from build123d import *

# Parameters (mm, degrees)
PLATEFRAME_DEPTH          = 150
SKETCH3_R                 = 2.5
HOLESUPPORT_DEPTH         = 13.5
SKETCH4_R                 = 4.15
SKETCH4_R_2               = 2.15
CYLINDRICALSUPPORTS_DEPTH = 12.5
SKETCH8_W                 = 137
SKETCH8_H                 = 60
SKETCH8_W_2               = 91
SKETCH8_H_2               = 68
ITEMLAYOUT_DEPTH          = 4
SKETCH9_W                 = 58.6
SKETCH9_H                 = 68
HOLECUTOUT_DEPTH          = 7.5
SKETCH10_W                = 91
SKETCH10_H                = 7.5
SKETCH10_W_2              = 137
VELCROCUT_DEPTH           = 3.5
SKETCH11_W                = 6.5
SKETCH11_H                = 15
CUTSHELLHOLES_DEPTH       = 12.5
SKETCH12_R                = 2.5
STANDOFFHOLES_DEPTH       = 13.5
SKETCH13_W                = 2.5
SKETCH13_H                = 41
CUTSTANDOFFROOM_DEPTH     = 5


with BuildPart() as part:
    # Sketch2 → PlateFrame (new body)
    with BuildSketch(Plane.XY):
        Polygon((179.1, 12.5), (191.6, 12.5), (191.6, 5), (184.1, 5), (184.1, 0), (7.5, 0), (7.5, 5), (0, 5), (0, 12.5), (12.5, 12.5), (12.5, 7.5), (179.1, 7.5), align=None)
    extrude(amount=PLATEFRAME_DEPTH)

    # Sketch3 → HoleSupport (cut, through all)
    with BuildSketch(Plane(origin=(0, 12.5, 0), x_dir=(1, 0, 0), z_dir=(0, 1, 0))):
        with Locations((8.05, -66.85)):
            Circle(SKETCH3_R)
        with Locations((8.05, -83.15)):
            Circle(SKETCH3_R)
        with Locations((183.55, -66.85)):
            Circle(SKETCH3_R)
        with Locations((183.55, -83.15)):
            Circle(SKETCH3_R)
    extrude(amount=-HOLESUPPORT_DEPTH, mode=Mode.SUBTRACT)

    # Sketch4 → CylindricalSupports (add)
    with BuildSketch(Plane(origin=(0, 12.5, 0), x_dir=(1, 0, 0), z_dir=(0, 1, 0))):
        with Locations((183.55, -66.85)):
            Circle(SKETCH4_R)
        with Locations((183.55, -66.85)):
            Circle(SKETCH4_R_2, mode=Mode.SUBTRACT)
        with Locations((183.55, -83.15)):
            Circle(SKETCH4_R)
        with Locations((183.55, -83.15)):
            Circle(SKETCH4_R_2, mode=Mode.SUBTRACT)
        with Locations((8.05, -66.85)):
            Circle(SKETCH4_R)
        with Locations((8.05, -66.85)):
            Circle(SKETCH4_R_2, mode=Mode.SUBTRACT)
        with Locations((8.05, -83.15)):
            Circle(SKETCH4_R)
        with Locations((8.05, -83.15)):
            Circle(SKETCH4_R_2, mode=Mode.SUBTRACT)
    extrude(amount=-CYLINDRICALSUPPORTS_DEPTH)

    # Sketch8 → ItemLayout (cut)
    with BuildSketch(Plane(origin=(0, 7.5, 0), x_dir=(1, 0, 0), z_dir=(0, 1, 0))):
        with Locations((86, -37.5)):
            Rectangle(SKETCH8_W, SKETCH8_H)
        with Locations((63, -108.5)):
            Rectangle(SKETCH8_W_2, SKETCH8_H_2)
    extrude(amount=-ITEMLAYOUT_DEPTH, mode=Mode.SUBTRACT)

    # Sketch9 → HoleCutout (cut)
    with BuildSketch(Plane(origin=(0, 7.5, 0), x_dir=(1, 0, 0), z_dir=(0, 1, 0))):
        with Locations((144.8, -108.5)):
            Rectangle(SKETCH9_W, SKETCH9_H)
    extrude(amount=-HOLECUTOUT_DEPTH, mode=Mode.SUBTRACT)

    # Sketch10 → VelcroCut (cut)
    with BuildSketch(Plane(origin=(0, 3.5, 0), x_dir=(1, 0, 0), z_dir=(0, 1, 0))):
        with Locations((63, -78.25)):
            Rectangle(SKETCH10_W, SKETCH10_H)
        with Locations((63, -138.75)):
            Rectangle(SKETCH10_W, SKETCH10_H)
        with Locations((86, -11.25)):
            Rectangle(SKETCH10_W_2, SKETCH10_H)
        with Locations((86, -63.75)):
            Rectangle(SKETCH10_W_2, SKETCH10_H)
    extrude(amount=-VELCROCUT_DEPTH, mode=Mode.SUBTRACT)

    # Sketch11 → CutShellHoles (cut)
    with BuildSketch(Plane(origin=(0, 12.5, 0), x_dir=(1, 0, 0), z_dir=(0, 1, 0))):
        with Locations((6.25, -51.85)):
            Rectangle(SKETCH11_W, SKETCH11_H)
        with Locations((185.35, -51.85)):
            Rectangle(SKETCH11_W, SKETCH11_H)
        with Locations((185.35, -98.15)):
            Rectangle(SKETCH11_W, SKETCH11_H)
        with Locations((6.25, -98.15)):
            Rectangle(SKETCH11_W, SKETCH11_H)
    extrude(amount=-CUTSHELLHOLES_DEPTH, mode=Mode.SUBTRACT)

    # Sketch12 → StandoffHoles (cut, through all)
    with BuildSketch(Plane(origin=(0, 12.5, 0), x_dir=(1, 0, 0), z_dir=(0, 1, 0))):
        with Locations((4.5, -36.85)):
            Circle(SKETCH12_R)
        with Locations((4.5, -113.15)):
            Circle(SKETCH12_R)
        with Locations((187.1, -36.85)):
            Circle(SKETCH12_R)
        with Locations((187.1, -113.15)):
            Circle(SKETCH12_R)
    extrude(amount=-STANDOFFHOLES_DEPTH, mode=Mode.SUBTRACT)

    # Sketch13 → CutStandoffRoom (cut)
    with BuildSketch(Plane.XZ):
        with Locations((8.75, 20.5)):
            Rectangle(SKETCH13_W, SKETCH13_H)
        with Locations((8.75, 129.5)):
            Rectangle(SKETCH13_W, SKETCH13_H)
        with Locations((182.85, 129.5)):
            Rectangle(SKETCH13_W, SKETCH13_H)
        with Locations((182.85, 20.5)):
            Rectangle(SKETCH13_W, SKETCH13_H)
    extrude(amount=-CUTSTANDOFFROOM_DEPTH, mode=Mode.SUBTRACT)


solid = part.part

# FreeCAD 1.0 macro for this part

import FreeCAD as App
import Part
import Sketcher

V = App.Vector
Q = App.Units.Quantity


def add_polygon(sketch, points):
    """Adds a closed chain of lines whose ends are joined by coincident constraints."""
    first, n = sketch.GeometryCount, len(points)
    for a, b in zip(points, points[1:] + points[:1]):
        sketch.addGeometry(Part.LineSegment(App.Vector(*a, 0), App.Vector(*b, 0)), False)
    for i in range(n):
        sketch.addConstraint(Sketcher.Constraint("Coincident", first + i, 2, first + (i + 1) % n, 1))

doc = App.newDocument("Part")
body = doc.addObject("PartDesign::Body", "Body")

sketch1 = body.newObject("Sketcher::SketchObject", "Sketch")
sketch1.AttachmentSupport = (doc.getObject("XY_Plane"), [""])
sketch1.MapMode = "FlatFace"
add_polygon(sketch1, [(192, 12), (179, 12), (179, 8), (12, 8), (12, 12), (0, 12), (0, 5), (8, 5), (8, 0), (184, 0), (184, 5), (192, 5)])
sketch1.addConstraint(Sketcher.Constraint("Horizontal", 0))
sketch1.addConstraint(Sketcher.Constraint("Vertical", 1))
sketch1.addConstraint(Sketcher.Constraint("Horizontal", 2))
sketch1.addConstraint(Sketcher.Constraint("Vertical", 3))
sketch1.addConstraint(Sketcher.Constraint("Horizontal", 4))
sketch1.addConstraint(Sketcher.Constraint("Vertical", 5))
sketch1.addConstraint(Sketcher.Constraint("Horizontal", 6))
sketch1.addConstraint(Sketcher.Constraint("Vertical", 7))
sketch1.addConstraint(Sketcher.Constraint("Horizontal", 8))
sketch1.addConstraint(Sketcher.Constraint("Vertical", 9))
sketch1.addConstraint(Sketcher.Constraint("Horizontal", 10))
sketch1.addConstraint(Sketcher.Constraint("Vertical", 11))
sketch1.addConstraint(Sketcher.Constraint("PointOnObject", 4, 2, -2))
sketch1.addConstraint(Sketcher.Constraint("PointOnObject", 7, 2, -1))
sketch1.addConstraint(Sketcher.Constraint("Horizontal", 0, 2, 3, 2))
sketch1.addConstraint(Sketcher.Constraint("Horizontal", 6, 2, 9, 2))
sketch1.addConstraint(Sketcher.Constraint("Equal", 0, 4))
sketch1.addConstraint(Sketcher.Constraint("Equal", 6, 10))
sketch1.addConstraint(Sketcher.Constraint("Equal", 10, 5))
sketch1.addConstraint(Sketcher.Constraint("Equal", 3, 7))
sketch1.addConstraint(Sketcher.Constraint("DistanceY", 1, 2, 1, 1, Q("5 mm")))
sketch1.addConstraint(Sketcher.Constraint("DistanceX", 0, 2, 0, 1, Q("12.5 mm")))
sketch1.addConstraint(Sketcher.Constraint("DistanceX", 2, 2, 2, 1, Q("166.6 mm")))
sketch1.addConstraint(Sketcher.Constraint("DistanceX", 6, 1, 6, 2, Q("7.5 mm")))
pad1 = body.newObject("PartDesign::Pad", "Pad")
pad1.Profile = sketch1
pad1.Length = 150

sketch2 = body.newObject("Sketcher::SketchObject", "Sketch001")
sketch2.AttachmentSupport = (doc.getObject("XZ_Plane"), [""])
sketch2.MapMode = "FlatFace"
sketch2.AttachmentOffset = App.Placement(V(0, 0, -12.5), App.Rotation())
sketch2.addGeometry(Part.Circle(V(8.1, 66.8, 0), V(0, 0, 1), 2.5), False)
sketch2.addGeometry(Part.Circle(V(8.1, 83.2, 0), V(0, 0, 1), 2.5), False)
sketch2.addGeometry(Part.Circle(V(183.6, 66.8, 0), V(0, 0, 1), 2.5), False)
sketch2.addGeometry(Part.Circle(V(183.6, 83.2, 0), V(0, 0, 1), 2.5), False)
sketch2.addConstraint(Sketcher.Constraint("Equal", 0, 1))
sketch2.addConstraint(Sketcher.Constraint("Equal", 1, 2))
sketch2.addConstraint(Sketcher.Constraint("Equal", 2, 3))
sketch2.addConstraint(Sketcher.Constraint("Horizontal", 0, 3, 2, 3))
sketch2.addConstraint(Sketcher.Constraint("Horizontal", 1, 3, 3, 3))
sketch2.addConstraint(Sketcher.Constraint("Vertical", 0, 3, 1, 3))
sketch2.addConstraint(Sketcher.Constraint("Vertical", 2, 3, 3, 3))
sketch2.addConstraint(Sketcher.Constraint("Diameter", 0, Q("5 mm")))
sketch2.addConstraint(Sketcher.Constraint("DistanceY", 0, 3, 1, 3, Q("16.3 mm")))
sketch2.addConstraint(Sketcher.Constraint("DistanceX", 0, 3, 2, 3, Q("175.5 mm")))
sketch2.addConstraint(Sketcher.Constraint("DistanceX", -1, 1, 0, 3, Q("8.05 mm")))
sketch2.addConstraint(Sketcher.Constraint("DistanceY", -1, 1, 0, 3, Q("66.85 mm")))
pocket1 = body.newObject("PartDesign::Pocket", "Pocket")
pocket1.Profile = sketch2
pocket1.Type = "ThroughAll"
pocket1.Reversed = True

sketch3 = body.newObject("Sketcher::SketchObject", "Sketch002")
sketch3.AttachmentSupport = (doc.getObject("XZ_Plane"), [""])
sketch3.MapMode = "FlatFace"
sketch3.AttachmentOffset = App.Placement(V(0, 0, -12.5), App.Rotation())
sketch3.addGeometry(Part.Circle(V(183.6, 66.8, 0), V(0, 0, 1), 4.2), False)
sketch3.addGeometry(Part.Circle(V(183.6, 66.8, 0), V(0, 0, 1), 2.1), False)
sketch3.addGeometry(Part.Circle(V(183.6, 83.2, 0), V(0, 0, 1), 4.2), False)
sketch3.addGeometry(Part.Circle(V(183.6, 83.2, 0), V(0, 0, 1), 2.1), False)
sketch3.addGeometry(Part.Circle(V(8.1, 66.8, 0), V(0, 0, 1), 4.2), False)
sketch3.addGeometry(Part.Circle(V(8.1, 66.8, 0), V(0, 0, 1), 2.1), False)
sketch3.addGeometry(Part.Circle(V(8.1, 83.2, 0), V(0, 0, 1), 4.2), False)
sketch3.addGeometry(Part.Circle(V(8.1, 83.2, 0), V(0, 0, 1), 2.1), False)
sketch3.addConstraint(Sketcher.Constraint("Coincident", 1, 3, 0, 3))
sketch3.addConstraint(Sketcher.Constraint("Coincident", 3, 3, 2, 3))
sketch3.addConstraint(Sketcher.Constraint("Coincident", 5, 3, 4, 3))
sketch3.addConstraint(Sketcher.Constraint("Coincident", 7, 3, 6, 3))
sketch3.addConstraint(Sketcher.Constraint("Equal", 0, 2))
sketch3.addConstraint(Sketcher.Constraint("Equal", 1, 3))
sketch3.addConstraint(Sketcher.Constraint("Equal", 2, 4))
sketch3.addConstraint(Sketcher.Constraint("Equal", 3, 5))
sketch3.addConstraint(Sketcher.Constraint("Equal", 4, 6))
sketch3.addConstraint(Sketcher.Constraint("Equal", 5, 7))
sketch3.addConstraint(Sketcher.Constraint("Horizontal", 1, 3, 4, 3))
sketch3.addConstraint(Sketcher.Constraint("Horizontal", 3, 3, 6, 3))
sketch3.addConstraint(Sketcher.Constraint("Vertical", 1, 3, 2, 3))
sketch3.addConstraint(Sketcher.Constraint("Vertical", 5, 3, 6, 3))
sketch3.addConstraint(Sketcher.Constraint("Diameter", 0, Q("8.3 mm")))
sketch3.addConstraint(Sketcher.Constraint("Diameter", 1, Q("4.3 mm")))
sketch3.addConstraint(Sketcher.Constraint("DistanceY", 0, 3, 2, 3, Q("16.3 mm")))
sketch3.addConstraint(Sketcher.Constraint("DistanceX", 4, 3, 0, 3, Q("175.5 mm")))
sketch3.addConstraint(Sketcher.Constraint("DistanceX", -1, 1, 0, 3, Q("183.55 mm")))
sketch3.addConstraint(Sketcher.Constraint("DistanceY", -1, 1, 0, 3, Q("66.85 mm")))
pad2 = body.newObject("PartDesign::Pad", "Pad001")
pad2.Profile = sketch3
pad2.Length = 12.5

sketch4 = body.newObject("Sketcher::SketchObject", "Sketch003")
sketch4.AttachmentSupport = (doc.getObject("XZ_Plane"), [""])
sketch4.MapMode = "FlatFace"
sketch4.AttachmentOffset = App.Placement(V(0, 0, -7.5), App.Rotation())
add_polygon(sketch4, [(18, 8), (18, 68), (154, 68), (154, 8)])
add_polygon(sketch4, [(18, 74), (18, 142), (108, 142), (108, 74)])
sketch4.addConstraint(Sketcher.Constraint("Vertical", 0))
sketch4.addConstraint(Sketcher.Constraint("Horizontal", 1))
sketch4.addConstraint(Sketcher.Constraint("Vertical", 2))
sketch4.addConstraint(Sketcher.Constraint("Horizontal", 3))
sketch4.addConstraint(Sketcher.Constraint("Vertical", 4))
sketch4.addConstraint(Sketcher.Constraint("Horizontal", 5))
sketch4.addConstraint(Sketcher.Constraint("Vertical", 6))
sketch4.addConstraint(Sketcher.Constraint("Horizontal", 7))
sketch4.addConstraint(Sketcher.Constraint("Vertical", 3, 2, 4, 2))
sketch4.addConstraint(Sketcher.Constraint("DistanceX", 1, 1, 1, 2, Q("137 mm")))
sketch4.addConstraint(Sketcher.Constraint("DistanceX", 5, 1, 5, 2, Q("91 mm")))
sketch4.addConstraint(Sketcher.Constraint("DistanceY", 0, 1, 0, 2, Q("60 mm")))
sketch4.addConstraint(Sketcher.Constraint("DistanceY", 4, 1, 4, 2, Q("68 mm")))
sketch4.addConstraint(Sketcher.Constraint("DistanceY", 0, 2, 4, 2, Q("75 mm")))
sketch4.addConstraint(Sketcher.Constraint("DistanceX", -1, 1, 0, 2, Q("17.5 mm")))
sketch4.addConstraint(Sketcher.Constraint("DistanceY", -1, 1, 0, 2, Q("67.5 mm")))
pocket2 = body.newObject("PartDesign::Pocket", "Pocket001")
pocket2.Profile = sketch4
pocket2.Length = 4
pocket2.Reversed = True

sketch5 = body.newObject("Sketcher::SketchObject", "Sketch004")
sketch5.AttachmentSupport = (doc.getObject("XZ_Plane"), [""])
sketch5.MapMode = "FlatFace"
sketch5.AttachmentOffset = App.Placement(V(0, 0, -7.5), App.Rotation())
add_polygon(sketch5, [(116, 74), (116, 142), (174, 142), (174, 74)])
sketch5.addConstraint(Sketcher.Constraint("Vertical", 0))
sketch5.addConstraint(Sketcher.Constraint("Horizontal", 1))
sketch5.addConstraint(Sketcher.Constraint("Vertical", 2))
sketch5.addConstraint(Sketcher.Constraint("Horizontal", 3))
sketch5.addConstraint(Sketcher.Constraint("DistanceY", 0, 1, 0, 2, Q("68 mm")))
sketch5.addConstraint(Sketcher.Constraint("DistanceX", 1, 1, 1, 2, Q("58.6 mm")))
sketch5.addConstraint(Sketcher.Constraint("DistanceX", -1, 1, 0, 2, Q("115.5 mm")))
sketch5.addConstraint(Sketcher.Constraint("DistanceY", -1, 1, 0, 2, Q("142.5 mm")))
pocket3 = body.newObject("PartDesign::Pocket", "Pocket002")
pocket3.Profile = sketch5
pocket3.Length = 7.5
pocket3.Reversed = True

sketch6 = body.newObject("Sketcher::SketchObject", "Sketch005")
sketch6.AttachmentSupport = (doc.getObject("XZ_Plane"), [""])
sketch6.MapMode = "FlatFace"
sketch6.AttachmentOffset = App.Placement(V(0, 0, -3.5), App.Rotation())
add_polygon(sketch6, [(18, 74), (18, 82), (108, 82), (108, 74)])
add_polygon(sketch6, [(18, 135), (18, 142), (108, 142), (108, 135)])
add_polygon(sketch6, [(18, 8), (18, 15), (154, 15), (154, 8)])
add_polygon(sketch6, [(18, 60), (18, 68), (154, 68), (154, 60)])
sketch6.addConstraint(Sketcher.Constraint("Vertical", 0))
sketch6.addConstraint(Sketcher.Constraint("Horizontal", 1))
sketch6.addConstraint(Sketcher.Constraint("Vertical", 2))
sketch6.addConstraint(Sketcher.Constraint("Horizontal", 3))
sketch6.addConstraint(Sketcher.Constraint("Vertical", 4))
sketch6.addConstraint(Sketcher.Constraint("Horizontal", 5))
sketch6.addConstraint(Sketcher.Constraint("Vertical", 6))
sketch6.addConstraint(Sketcher.Constraint("Horizontal", 7))
sketch6.addConstraint(Sketcher.Constraint("Vertical", 8))
sketch6.addConstraint(Sketcher.Constraint("Horizontal", 9))
sketch6.addConstraint(Sketcher.Constraint("Vertical", 10))
sketch6.addConstraint(Sketcher.Constraint("Horizontal", 11))
sketch6.addConstraint(Sketcher.Constraint("Vertical", 12))
sketch6.addConstraint(Sketcher.Constraint("Horizontal", 13))
sketch6.addConstraint(Sketcher.Constraint("Vertical", 14))
sketch6.addConstraint(Sketcher.Constraint("Horizontal", 15))
sketch6.addConstraint(Sketcher.Constraint("Vertical", 3, 2, 4, 2))
sketch6.addConstraint(Sketcher.Constraint("Vertical", 2, 2, 5, 2))
sketch6.addConstraint(Sketcher.Constraint("Vertical", 7, 2, 8, 2))
sketch6.addConstraint(Sketcher.Constraint("Vertical", 11, 2, 12, 2))
sketch6.addConstraint(Sketcher.Constraint("Vertical", 10, 2, 13, 2))
sketch6.addConstraint(Sketcher.Constraint("Equal", 2, 4))
sketch6.addConstraint(Sketcher.Constraint("Equal", 6, 8))
sketch6.addConstraint(Sketcher.Constraint("Equal", 10, 12))
sketch6.addConstraint(Sketcher.Constraint("DistanceX", 1, 1, 1, 2, Q("91 mm")))
sketch6.addConstraint(Sketcher.Constraint("DistanceX", 9, 1, 9, 2, Q("137 mm")))
sketch6.addConstraint(Sketcher.Constraint("DistanceY", 0, 1, 0, 2, Q("7.5 mm")))
sketch6.addConstraint(Sketcher.Constraint("DistanceY", -1, 1, 0, 2, Q("82 mm")))
sketch6.addConstraint(Sketcher.Constraint("DistanceY", -1, 1, 6, 2, Q("135 mm")))
sketch6.addConstraint(Sketcher.Constraint("DistanceY", -1, 1, 8, 2, Q("15 mm")))
sketch6.addConstraint(Sketcher.Constraint("DistanceY", -1, 1, 14, 2, Q("60 mm")))
sketch6.addConstraint(Sketcher.Constraint("DistanceX", -1, 1, 0, 2, Q("17.5 mm")))
pocket4 = body.newObject("PartDesign::Pocket", "Pocket003")
pocket4.Profile = sketch6
pocket4.Length = 3.5
pocket4.Reversed = True

sketch7 = body.newObject("Sketcher::SketchObject", "Sketch006")
sketch7.AttachmentSupport = (doc.getObject("XZ_Plane"), [""])
sketch7.MapMode = "FlatFace"
sketch7.AttachmentOffset = App.Placement(V(0, 0, -12.5), App.Rotation())
add_polygon(sketch7, [(3, 44), (3, 59), (10, 59), (10, 44)])
add_polygon(sketch7, [(182, 44), (182, 59), (189, 59), (189, 44)])
add_polygon(sketch7, [(182, 91), (182, 106), (189, 106), (189, 91)])
add_polygon(sketch7, [(3, 91), (3, 106), (10, 106), (10, 91)])
sketch7.addConstraint(Sketcher.Constraint("Vertical", 0))
sketch7.addConstraint(Sketcher.Constraint("Horizontal", 1))
sketch7.addConstraint(Sketcher.Constraint("Vertical", 2))
sketch7.addConstraint(Sketcher.Constraint("Horizontal", 3))
sketch7.addConstraint(Sketcher.Constraint("Vertical", 4))
sketch7.addConstraint(Sketcher.Constraint("Horizontal", 5))
sketch7.addConstraint(Sketcher.Constraint("Vertical", 6))
sketch7.addConstraint(Sketcher.Constraint("Horizontal", 7))
sketch7.addConstraint(Sketcher.Constraint("Vertical", 8))
sketch7.addConstraint(Sketcher.Constraint("Horizontal", 9))
sketch7.addConstraint(Sketcher.Constraint("Vertical", 10))
sketch7.addConstraint(Sketcher.Constraint("Horizontal", 11))
sketch7.addConstraint(Sketcher.Constraint("Vertical", 12))
sketch7.addConstraint(Sketcher.Constraint("Horizontal", 13))
sketch7.addConstraint(Sketcher.Constraint("Vertical", 14))
sketch7.addConstraint(Sketcher.Constraint("Horizontal", 15))
sketch7.addConstraint(Sketcher.Constraint("Horizontal", 1, 2, 4, 2))
sketch7.addConstraint(Sketcher.Constraint("Horizontal", 3, 2, 6, 2))
sketch7.addConstraint(Sketcher.Constraint("Horizontal", 9, 2, 12, 2))
sketch7.addConstraint(Sketcher.Constraint("Horizontal", 11, 2, 14, 2))
sketch7.addConstraint(Sketcher.Constraint("Vertical", 7, 2, 8, 2))
sketch7.addConstraint(Sketcher.Constraint("Vertical", 6, 2, 9, 2))
sketch7.addConstraint(Sketcher.Constraint("Vertical", 3, 2, 12, 2))
sketch7.addConstraint(Sketcher.Constraint("Vertical", 2, 2, 13, 2))
sketch7.addConstraint(Sketcher.Constraint("Equal", 3, 5))
sketch7.addConstraint(Sketcher.Constraint("Equal", 6, 8))
sketch7.addConstraint(Sketcher.Constraint("DistanceY", 0, 1, 0, 2, Q("15 mm")))
sketch7.addConstraint(Sketcher.Constraint("DistanceX", 1, 1, 1, 2, Q("6.5 mm")))
sketch7.addConstraint(Sketcher.Constraint("DistanceX", -1, 1, 0, 2, Q("3 mm")))
sketch7.addConstraint(Sketcher.Constraint("DistanceX", -1, 1, 4, 2, Q("182.1 mm")))
sketch7.addConstraint(Sketcher.Constraint("DistanceY", 4, 2, 8, 2, Q("46.3 mm")))
sketch7.addConstraint(Sketcher.Constraint("DistanceY", -1, 1, 0, 2, Q("59.35 mm")))
pocket5 = body.newObject("PartDesign::Pocket", "Pocket004")
pocket5.Profile = sketch7
pocket5.Length = 12.5
pocket5.Reversed = True

sketch8 = body.newObject("Sketcher::SketchObject", "Sketch007")
sketch8.AttachmentSupport = (doc.getObject("XZ_Plane"), [""])
sketch8.MapMode = "FlatFace"
sketch8.AttachmentOffset = App.Placement(V(0, 0, -12.5), App.Rotation())
sketch8.addGeometry(Part.Circle(V(4.5, 36.9, 0), V(0, 0, 1), 2.5), False)
sketch8.addGeometry(Part.Circle(V(4.5, 113.2, 0), V(0, 0, 1), 2.5), False)
sketch8.addGeometry(Part.Circle(V(187.1, 36.9, 0), V(0, 0, 1), 2.5), False)
sketch8.addGeometry(Part.Circle(V(187.1, 113.2, 0), V(0, 0, 1), 2.5), False)
sketch8.addConstraint(Sketcher.Constraint("Equal", 0, 1))
sketch8.addConstraint(Sketcher.Constraint("Equal", 1, 2))
sketch8.addConstraint(Sketcher.Constraint("Equal", 2, 3))
sketch8.addConstraint(Sketcher.Constraint("Horizontal", 0, 3, 2, 3))
sketch8.addConstraint(Sketcher.Constraint("Horizontal", 1, 3, 3, 3))
sketch8.addConstraint(Sketcher.Constraint("Vertical", 0, 3, 1, 3))
sketch8.addConstraint(Sketcher.Constraint("Vertical", 2, 3, 3, 3))
sketch8.addConstraint(Sketcher.Constraint("Diameter", 0, Q("5 mm")))
sketch8.addConstraint(Sketcher.Constraint("DistanceX", -1, 1, 0, 3, Q("4.5 mm")))
sketch8.addConstraint(Sketcher.Constraint("DistanceX", -1, 1, 2, 3, Q("187.1 mm")))
sketch8.addConstraint(Sketcher.Constraint("DistanceY", 0, 3, 1, 3, Q("76.3 mm")))
sketch8.addConstraint(Sketcher.Constraint("DistanceY", -1, 1, 0, 3, Q("36.85 mm")))
pocket6 = body.newObject("PartDesign::Pocket", "Pocket005")
pocket6.Profile = sketch8
pocket6.Type = "ThroughAll"
pocket6.Reversed = True

sketch9 = body.newObject("Sketcher::SketchObject", "Sketch008")
sketch9.AttachmentSupport = (doc.getObject("XZ_Plane"), [""])
sketch9.MapMode = "FlatFace"
add_polygon(sketch9, [(7.5, 41), (7.5, 0), (10, 0), (10, 41)])
add_polygon(sketch9, [(7.5, 150), (7.5, 109), (10, 109), (10, 150)])
add_polygon(sketch9, [(181.6, 150), (181.6, 109), (184.1, 109), (184.1, 150)])
add_polygon(sketch9, [(181.6, 41), (181.6, 0), (184.1, 0), (184.1, 41)])
sketch9.addConstraint(Sketcher.Constraint("Vertical", 0))
sketch9.addConstraint(Sketcher.Constraint("Horizontal", 1))
sketch9.addConstraint(Sketcher.Constraint("Vertical", 2))
sketch9.addConstraint(Sketcher.Constraint("Horizontal", 3))
sketch9.addConstraint(Sketcher.Constraint("Vertical", 4))
sketch9.addConstraint(Sketcher.Constraint("Horizontal", 5))
sketch9.addConstraint(Sketcher.Constraint("Vertical", 6))
sketch9.addConstraint(Sketcher.Constraint("Horizontal", 7))
sketch9.addConstraint(Sketcher.Constraint("Vertical", 8))
sketch9.addConstraint(Sketcher.Constraint("Horizontal", 9))
sketch9.addConstraint(Sketcher.Constraint("Vertical", 10))
sketch9.addConstraint(Sketcher.Constraint("Horizontal", 11))
sketch9.addConstraint(Sketcher.Constraint("Vertical", 12))
sketch9.addConstraint(Sketcher.Constraint("Horizontal", 13))
sketch9.addConstraint(Sketcher.Constraint("Vertical", 14))
sketch9.addConstraint(Sketcher.Constraint("Horizontal", 15))
sketch9.addConstraint(Sketcher.Constraint("PointOnObject", 0, 2, -1))
sketch9.addConstraint(Sketcher.Constraint("PointOnObject", 12, 2, -1))
sketch9.addConstraint(Sketcher.Constraint("Horizontal", 5, 2, 8, 2))
sketch9.addConstraint(Sketcher.Constraint("Horizontal", 7, 2, 10, 2))
sketch9.addConstraint(Sketcher.Constraint("Horizontal", 3, 2, 14, 2))
sketch9.addConstraint(Sketcher.Constraint("Vertical", 3, 2, 4, 2))
sketch9.addConstraint(Sketcher.Constraint("Vertical", 2, 2, 5, 2))
sketch9.addConstraint(Sketcher.Constraint("Vertical", 11, 2, 12, 2))
sketch9.addConstraint(Sketcher.Constraint("Vertical", 10, 2, 13, 2))
sketch9.addConstraint(Sketcher.Constraint("Equal", 7, 9))
sketch9.addConstraint(Sketcher.Constraint("Equal", 2, 4))
sketch9.addConstraint(Sketcher.Constraint("DistanceY", 0, 2, 0, 1, Q("41 mm")))
sketch9.addConstraint(Sketcher.Constraint("DistanceX", 1, 1, 1, 2, Q("2.5 mm")))
sketch9.addConstraint(Sketcher.Constraint("DistanceX", -1, 1, 1, 2, Q("10 mm")))
sketch9.addConstraint(Sketcher.Constraint("DistanceY", -1, 1, 4, 2, Q("109 mm")))
sketch9.addConstraint(Sketcher.Constraint("DistanceX", -1, 1, 8, 2, Q("181.6 mm")))
pocket7 = body.newObject("PartDesign::Pocket", "Pocket006")
pocket7.Profile = sketch9
pocket7.Length = 5

doc.recompute()
